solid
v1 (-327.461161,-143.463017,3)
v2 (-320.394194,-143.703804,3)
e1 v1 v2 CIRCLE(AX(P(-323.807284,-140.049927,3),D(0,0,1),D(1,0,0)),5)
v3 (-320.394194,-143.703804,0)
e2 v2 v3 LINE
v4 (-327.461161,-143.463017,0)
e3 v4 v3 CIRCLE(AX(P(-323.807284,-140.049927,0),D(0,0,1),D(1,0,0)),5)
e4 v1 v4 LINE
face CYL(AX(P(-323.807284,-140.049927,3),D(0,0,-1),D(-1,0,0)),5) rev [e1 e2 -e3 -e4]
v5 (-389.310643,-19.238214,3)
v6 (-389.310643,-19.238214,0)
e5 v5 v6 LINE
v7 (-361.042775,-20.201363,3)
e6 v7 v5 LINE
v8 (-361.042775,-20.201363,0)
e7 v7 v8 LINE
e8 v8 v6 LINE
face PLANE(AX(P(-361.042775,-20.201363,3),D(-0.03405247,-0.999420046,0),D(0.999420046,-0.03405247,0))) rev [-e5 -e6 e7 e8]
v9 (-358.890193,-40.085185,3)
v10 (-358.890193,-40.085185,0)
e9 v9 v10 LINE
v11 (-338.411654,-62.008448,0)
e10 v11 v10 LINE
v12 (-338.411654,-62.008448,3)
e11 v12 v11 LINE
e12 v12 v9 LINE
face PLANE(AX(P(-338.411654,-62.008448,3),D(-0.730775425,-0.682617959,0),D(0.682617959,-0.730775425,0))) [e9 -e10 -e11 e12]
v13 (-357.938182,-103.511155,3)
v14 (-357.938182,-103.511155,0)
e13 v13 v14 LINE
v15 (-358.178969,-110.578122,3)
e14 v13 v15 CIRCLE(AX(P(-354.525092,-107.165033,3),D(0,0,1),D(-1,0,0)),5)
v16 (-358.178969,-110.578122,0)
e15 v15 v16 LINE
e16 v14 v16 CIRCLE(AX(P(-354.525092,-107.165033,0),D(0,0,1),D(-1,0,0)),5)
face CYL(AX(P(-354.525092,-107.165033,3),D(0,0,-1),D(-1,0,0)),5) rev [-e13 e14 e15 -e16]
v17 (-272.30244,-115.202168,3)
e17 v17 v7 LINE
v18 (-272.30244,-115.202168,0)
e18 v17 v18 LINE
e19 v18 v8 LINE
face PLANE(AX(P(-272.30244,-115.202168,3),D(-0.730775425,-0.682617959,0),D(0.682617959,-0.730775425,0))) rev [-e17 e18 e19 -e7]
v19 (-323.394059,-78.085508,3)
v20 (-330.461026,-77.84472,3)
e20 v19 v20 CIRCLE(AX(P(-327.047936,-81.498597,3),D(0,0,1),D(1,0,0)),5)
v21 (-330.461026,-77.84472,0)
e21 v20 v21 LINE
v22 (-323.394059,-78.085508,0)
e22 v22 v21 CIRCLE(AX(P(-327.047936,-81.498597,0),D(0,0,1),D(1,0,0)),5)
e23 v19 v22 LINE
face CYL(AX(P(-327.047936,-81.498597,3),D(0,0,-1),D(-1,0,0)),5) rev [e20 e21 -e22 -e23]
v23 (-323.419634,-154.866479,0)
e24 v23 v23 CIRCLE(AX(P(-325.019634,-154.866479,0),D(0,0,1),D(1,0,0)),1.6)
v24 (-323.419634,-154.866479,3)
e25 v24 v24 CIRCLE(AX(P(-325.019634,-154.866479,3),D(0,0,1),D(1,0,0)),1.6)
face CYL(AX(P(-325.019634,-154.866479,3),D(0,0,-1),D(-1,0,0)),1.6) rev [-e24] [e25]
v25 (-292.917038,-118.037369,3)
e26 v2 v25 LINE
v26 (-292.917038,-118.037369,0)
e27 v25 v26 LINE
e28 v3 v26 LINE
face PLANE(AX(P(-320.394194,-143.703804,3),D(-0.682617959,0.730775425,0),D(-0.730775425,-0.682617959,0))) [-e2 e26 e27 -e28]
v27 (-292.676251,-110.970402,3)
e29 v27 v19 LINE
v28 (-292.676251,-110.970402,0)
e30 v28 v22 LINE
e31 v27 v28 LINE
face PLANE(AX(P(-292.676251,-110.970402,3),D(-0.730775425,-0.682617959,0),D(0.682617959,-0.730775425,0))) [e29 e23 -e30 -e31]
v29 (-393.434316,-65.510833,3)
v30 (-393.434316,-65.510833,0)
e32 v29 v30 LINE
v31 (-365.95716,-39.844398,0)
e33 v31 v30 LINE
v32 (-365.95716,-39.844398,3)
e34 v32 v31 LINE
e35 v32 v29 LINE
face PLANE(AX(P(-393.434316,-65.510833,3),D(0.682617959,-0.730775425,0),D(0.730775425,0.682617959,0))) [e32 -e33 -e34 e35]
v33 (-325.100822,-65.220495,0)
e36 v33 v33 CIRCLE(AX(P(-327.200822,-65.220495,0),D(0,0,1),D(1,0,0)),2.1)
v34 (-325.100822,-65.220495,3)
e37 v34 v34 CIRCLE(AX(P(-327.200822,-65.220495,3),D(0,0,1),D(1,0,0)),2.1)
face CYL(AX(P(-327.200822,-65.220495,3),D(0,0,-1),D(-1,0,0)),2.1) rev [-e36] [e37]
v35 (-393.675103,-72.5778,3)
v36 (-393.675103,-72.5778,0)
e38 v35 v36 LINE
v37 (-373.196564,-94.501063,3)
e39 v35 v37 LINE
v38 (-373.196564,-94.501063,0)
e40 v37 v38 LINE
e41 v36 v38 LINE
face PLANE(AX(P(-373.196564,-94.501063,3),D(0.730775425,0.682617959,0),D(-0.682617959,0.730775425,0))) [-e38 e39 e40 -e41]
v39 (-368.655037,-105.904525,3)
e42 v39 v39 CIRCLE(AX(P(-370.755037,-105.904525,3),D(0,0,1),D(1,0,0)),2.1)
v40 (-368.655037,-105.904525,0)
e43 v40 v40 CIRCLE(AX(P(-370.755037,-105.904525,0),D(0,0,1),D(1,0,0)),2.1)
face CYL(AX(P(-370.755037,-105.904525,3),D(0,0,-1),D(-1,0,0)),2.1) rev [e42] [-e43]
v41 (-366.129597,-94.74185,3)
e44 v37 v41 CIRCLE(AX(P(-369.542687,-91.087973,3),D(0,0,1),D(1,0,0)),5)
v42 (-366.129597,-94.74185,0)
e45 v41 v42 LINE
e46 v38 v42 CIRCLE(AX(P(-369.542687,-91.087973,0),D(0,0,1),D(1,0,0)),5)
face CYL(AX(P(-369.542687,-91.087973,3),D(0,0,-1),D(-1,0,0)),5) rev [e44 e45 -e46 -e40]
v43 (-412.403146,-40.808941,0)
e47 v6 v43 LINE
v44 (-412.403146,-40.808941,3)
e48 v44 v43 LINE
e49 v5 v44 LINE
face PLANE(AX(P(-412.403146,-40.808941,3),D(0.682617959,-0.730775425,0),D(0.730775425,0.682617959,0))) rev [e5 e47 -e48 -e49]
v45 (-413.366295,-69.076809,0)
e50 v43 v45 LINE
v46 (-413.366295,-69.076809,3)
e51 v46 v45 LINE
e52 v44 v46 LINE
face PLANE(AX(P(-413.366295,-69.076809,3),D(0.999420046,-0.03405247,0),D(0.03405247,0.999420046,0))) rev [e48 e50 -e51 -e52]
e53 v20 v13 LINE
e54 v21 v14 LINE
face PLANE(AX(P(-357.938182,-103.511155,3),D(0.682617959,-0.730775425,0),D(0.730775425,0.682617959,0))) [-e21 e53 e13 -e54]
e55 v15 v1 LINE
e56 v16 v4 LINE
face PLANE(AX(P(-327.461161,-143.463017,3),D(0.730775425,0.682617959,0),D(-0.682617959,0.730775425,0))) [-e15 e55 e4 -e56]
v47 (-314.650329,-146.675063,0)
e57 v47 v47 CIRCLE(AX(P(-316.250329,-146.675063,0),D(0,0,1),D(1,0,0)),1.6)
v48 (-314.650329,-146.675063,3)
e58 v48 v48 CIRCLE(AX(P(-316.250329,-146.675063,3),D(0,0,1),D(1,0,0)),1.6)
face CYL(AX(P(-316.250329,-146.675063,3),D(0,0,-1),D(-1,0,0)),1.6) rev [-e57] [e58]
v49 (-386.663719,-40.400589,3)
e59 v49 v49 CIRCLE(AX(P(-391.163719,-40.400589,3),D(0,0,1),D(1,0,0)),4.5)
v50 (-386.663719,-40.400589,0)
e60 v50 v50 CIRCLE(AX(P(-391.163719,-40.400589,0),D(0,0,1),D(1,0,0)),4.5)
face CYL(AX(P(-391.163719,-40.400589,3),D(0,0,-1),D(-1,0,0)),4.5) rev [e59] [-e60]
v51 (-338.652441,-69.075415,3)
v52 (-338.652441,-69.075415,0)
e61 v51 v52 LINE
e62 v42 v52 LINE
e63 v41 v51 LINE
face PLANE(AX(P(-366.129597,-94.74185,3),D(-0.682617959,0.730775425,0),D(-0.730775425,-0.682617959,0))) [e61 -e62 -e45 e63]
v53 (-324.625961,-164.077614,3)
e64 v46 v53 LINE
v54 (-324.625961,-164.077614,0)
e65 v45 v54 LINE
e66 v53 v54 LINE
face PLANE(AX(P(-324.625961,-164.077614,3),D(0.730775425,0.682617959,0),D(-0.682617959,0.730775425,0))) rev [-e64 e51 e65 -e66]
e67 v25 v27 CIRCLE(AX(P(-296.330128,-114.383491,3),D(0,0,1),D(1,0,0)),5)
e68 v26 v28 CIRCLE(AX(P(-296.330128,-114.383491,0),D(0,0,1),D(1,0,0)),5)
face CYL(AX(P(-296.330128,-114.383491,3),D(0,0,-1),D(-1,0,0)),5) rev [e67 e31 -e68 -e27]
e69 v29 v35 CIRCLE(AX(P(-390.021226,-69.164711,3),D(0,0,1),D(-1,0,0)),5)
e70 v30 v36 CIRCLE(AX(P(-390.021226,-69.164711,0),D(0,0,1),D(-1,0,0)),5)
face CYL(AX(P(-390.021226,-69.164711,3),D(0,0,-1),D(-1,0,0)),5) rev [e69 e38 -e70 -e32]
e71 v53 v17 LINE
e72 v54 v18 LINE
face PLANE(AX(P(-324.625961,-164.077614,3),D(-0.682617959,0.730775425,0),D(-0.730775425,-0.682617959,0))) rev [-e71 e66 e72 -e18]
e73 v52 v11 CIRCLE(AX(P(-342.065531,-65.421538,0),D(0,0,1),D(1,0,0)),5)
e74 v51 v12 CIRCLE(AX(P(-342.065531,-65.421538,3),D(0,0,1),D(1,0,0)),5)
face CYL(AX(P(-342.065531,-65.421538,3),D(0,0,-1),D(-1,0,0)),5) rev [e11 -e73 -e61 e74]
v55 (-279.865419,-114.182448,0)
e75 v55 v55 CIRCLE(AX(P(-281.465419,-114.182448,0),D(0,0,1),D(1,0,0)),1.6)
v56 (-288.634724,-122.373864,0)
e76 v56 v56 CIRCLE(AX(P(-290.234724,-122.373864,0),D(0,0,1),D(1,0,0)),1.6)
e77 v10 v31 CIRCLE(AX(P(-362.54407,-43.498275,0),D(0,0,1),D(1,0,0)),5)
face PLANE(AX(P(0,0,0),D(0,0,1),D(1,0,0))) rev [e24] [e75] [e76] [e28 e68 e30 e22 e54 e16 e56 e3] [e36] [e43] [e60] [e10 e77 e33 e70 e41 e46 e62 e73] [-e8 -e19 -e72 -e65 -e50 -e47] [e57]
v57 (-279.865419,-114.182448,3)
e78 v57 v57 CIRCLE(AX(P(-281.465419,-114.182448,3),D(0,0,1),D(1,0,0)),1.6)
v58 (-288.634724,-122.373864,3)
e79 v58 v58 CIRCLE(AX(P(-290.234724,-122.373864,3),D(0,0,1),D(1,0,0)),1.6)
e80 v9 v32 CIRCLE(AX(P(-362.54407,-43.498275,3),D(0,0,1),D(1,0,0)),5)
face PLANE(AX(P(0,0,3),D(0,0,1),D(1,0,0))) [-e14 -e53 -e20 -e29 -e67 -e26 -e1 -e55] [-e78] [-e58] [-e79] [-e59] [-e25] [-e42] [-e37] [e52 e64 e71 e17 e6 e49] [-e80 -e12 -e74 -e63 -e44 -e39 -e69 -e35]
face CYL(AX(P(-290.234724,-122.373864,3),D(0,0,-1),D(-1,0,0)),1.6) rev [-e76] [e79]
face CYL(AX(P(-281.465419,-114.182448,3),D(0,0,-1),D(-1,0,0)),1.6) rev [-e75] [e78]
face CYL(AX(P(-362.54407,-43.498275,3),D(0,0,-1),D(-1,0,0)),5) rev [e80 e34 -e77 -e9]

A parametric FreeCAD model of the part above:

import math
import FreeCAD as App
import Part
import Sketcher
from FreeCAD import Vector

doc = App.newDocument("Part")
body = doc.addObject("PartDesign::Body", "Body")

# Sketch on XY plane
sketch1 = doc.addObject("Sketcher::SketchObject", "Sketch")
body.addObject(sketch1)
sketch1.AttachmentSupport = (doc.XY_Plane, [""])
sketch1.MapMode = "FlatFace"
sketch1.addGeometry([
    Part.LineSegment(Vector(-324.6, -164.1, 0), Vector(-272.3, -115.2, 0)),  # 0
    Part.LineSegment(Vector(-272.3, -115.2, 0), Vector(-361, -20.2, 0)),  # 1
    Part.LineSegment(Vector(-361, -20.2, 0), Vector(-389.3, -19.2, 0)),  # 2
    Part.LineSegment(Vector(-389.3, -19.2, 0), Vector(-412.4, -40.8, 0)),  # 3
    Part.LineSegment(Vector(-412.4, -40.8, 0), Vector(-413.4, -69.1, 0)),  # 4
    Part.LineSegment(Vector(-413.4, -69.1, 0), Vector(-324.6, -164.1, 0)),  # 5
    Part.Circle(Vector(-370.8, -105.9, 0), Vector(0, 0, 1), 2.1),  # 6
    Part.Circle(Vector(-325, -154.9, 0), Vector(0, 0, 1), 1.6),  # 7
    Part.Circle(Vector(-316.3, -146.7, 0), Vector(0, 0, 1), 1.6),  # 8
    Part.LineSegment(Vector(-292.9, -118, 0), Vector(-320.4, -143.7, 0)),  # 9
    Part.ArcOfCircle(Part.Circle(Vector(-323.8, -140, 0), Vector(0, 0, 1), 5), math.radians(-137), math.radians(-47)),  # 10
    Part.LineSegment(Vector(-327.5, -143.5, 0), Vector(-358.2, -110.6, 0)),  # 11
    Part.ArcOfCircle(Part.Circle(Vector(-354.5, -107.2, 0), Vector(0, 0, 1), 5), math.radians(133), math.radians(223)),  # 12
    Part.LineSegment(Vector(-357.9, -103.5, 0), Vector(-330.5, -77.8, 0)),  # 13
    Part.ArcOfCircle(Part.Circle(Vector(-327, -81.5, 0), Vector(0, 0, 1), 5), math.radians(43), math.radians(133)),  # 14
    Part.LineSegment(Vector(-323.4, -78.1, 0), Vector(-292.7, -111, 0)),  # 15
    Part.ArcOfCircle(Part.Circle(Vector(-296.3, -114.4, 0), Vector(0, 0, 1), 5), math.radians(-47), math.radians(43)),  # 16
    Part.Circle(Vector(-290.2, -122.4, 0), Vector(0, 0, 1), 1.6),  # 17
    Part.Circle(Vector(-281.5, -114.2, 0), Vector(0, 0, 1), 1.6),  # 18
    Part.LineSegment(Vector(-338.7, -69.1, 0), Vector(-366.1, -94.7, 0)),  # 19
    Part.ArcOfCircle(Part.Circle(Vector(-369.5, -91.1, 0), Vector(0, 0, 1), 5), math.radians(-137), math.radians(-47)),  # 20
    Part.LineSegment(Vector(-373.2, -94.5, 0), Vector(-393.7, -72.6, 0)),  # 21
    Part.ArcOfCircle(Part.Circle(Vector(-390, -69.2, 0), Vector(0, 0, 1), 5), math.radians(133), math.radians(223)),  # 22
    Part.LineSegment(Vector(-393.4, -65.5, 0), Vector(-366, -39.8, 0)),  # 23
    Part.ArcOfCircle(Part.Circle(Vector(-362.5, -43.5, 0), Vector(0, 0, 1), 5), math.radians(43), math.radians(133)),  # 24
    Part.LineSegment(Vector(-358.9, -40.1, 0), Vector(-338.4, -62, 0)),  # 25
    Part.ArcOfCircle(Part.Circle(Vector(-342.1, -65.4, 0), Vector(0, 0, 1), 5), math.radians(-47), math.radians(43)),  # 26
    Part.Circle(Vector(-391.2, -40.4, 0), Vector(0, 0, 1), 4.5),  # 27
    Part.Circle(Vector(-327.2, -65.2, 0), Vector(0, 0, 1), 2.1),  # 28
], False)
sketch1.addConstraint([
    Sketcher.Constraint("Coincident", 0, 2, 1, 1),
    Sketcher.Constraint("Coincident", 1, 2, 2, 1),
    Sketcher.Constraint("Coincident", 2, 2, 3, 1),
    Sketcher.Constraint("Coincident", 3, 2, 4, 1),
    Sketcher.Constraint("Coincident", 4, 2, 5, 1),
    Sketcher.Constraint("Coincident", 5, 2, 0, 1),
    Sketcher.Constraint("Tangent", 9, 2, 10, 2),
    Sketcher.Constraint("Tangent", 10, 1, 11, 1),
    Sketcher.Constraint("Tangent", 11, 2, 12, 2),
    Sketcher.Constraint("Tangent", 12, 1, 13, 1),
    Sketcher.Constraint("Tangent", 13, 2, 14, 2),
    Sketcher.Constraint("Tangent", 14, 1, 15, 1),
    Sketcher.Constraint("Tangent", 15, 2, 16, 2),
    Sketcher.Constraint("Tangent", 16, 1, 9, 1),
    Sketcher.Constraint("Tangent", 19, 2, 20, 2),
    Sketcher.Constraint("Tangent", 20, 1, 21, 1),
    Sketcher.Constraint("Tangent", 21, 2, 22, 2),
    Sketcher.Constraint("Tangent", 22, 1, 23, 1),
    Sketcher.Constraint("Tangent", 23, 2, 24, 2),
    Sketcher.Constraint("Tangent", 24, 1, 25, 1),
    Sketcher.Constraint("Tangent", 25, 2, 26, 2),
    Sketcher.Constraint("Tangent", 26, 1, 19, 1),
    Sketcher.Constraint("Equal", 7, 8),
    Sketcher.Constraint("Equal", 10, 12),
    Sketcher.Constraint("Equal", 12, 14),
    Sketcher.Constraint("Equal", 14, 16),
    Sketcher.Constraint("Equal", 8, 17),
    Sketcher.Constraint("Equal", 17, 18),
    Sketcher.Constraint("Equal", 16, 20),
    Sketcher.Constraint("Equal", 20, 22),
    Sketcher.Constraint("Equal", 22, 24),
    Sketcher.Constraint("Equal", 24, 26),
    Sketcher.Constraint("Equal", 6, 28),
    Sketcher.Constraint("Perpendicular", 0, 1),
    Sketcher.Constraint("Perpendicular", 1, 3),
    Sketcher.Constraint("Perpendicular", 2, 4),
    Sketcher.Constraint("Perpendicular", 3, 5),
    Sketcher.Constraint("Perpendicular", 5, 9),
    Sketcher.Constraint("Perpendicular", 9, 11),
    Sketcher.Constraint("Perpendicular", 11, 13),
    Sketcher.Constraint("Perpendicular", 13, 15),
    Sketcher.Constraint("Perpendicular", 15, 19),
    Sketcher.Constraint("Perpendicular", 19, 21),
    Sketcher.Constraint("Perpendicular", 21, 23),
    Sketcher.Constraint("Perpendicular", 23, 25),
    Sketcher.Constraint("Equal", 2, 4),
    Sketcher.Constraint("Equal", 1, 5),
    Sketcher.Constraint("Equal", 13, 19),
    Sketcher.Constraint("Diameter", 27, 9.0),
    Sketcher.Constraint("Radius", 10, 5.0),
    Sketcher.Constraint("Diameter", 6, 4.2),
    Sketcher.Constraint("Diameter", 7, 3.2),
    Sketcher.Constraint("Distance", 1, 130.0),
    Sketcher.Constraint("Distance", 11, 45.0),
    Sketcher.Constraint("Distance", 21, 30.0),
    Sketcher.Constraint("Distance", 0, 71.6),
    Sketcher.Constraint("Distance", 3, 31.6),
    Sketcher.Constraint("Distance", 9, 37.6),
    Sketcher.Constraint("DistanceY", 15, 2, -1, 1, 110.970402),
    Sketcher.Constraint("DistanceY", 21, 2, -1, 1, 72.5778),
    Sketcher.Constraint("DistanceY", 23, 2, -1, 1, 39.844398),
    Sketcher.Constraint("DistanceY", 10, 3, 6, 3, 34.145402),
    Sketcher.Constraint("DistanceX", 6, 3, 14, 3, 43.707101),
    Sketcher.Constraint("DistanceX", 8, 3, 16, 3, 19.920201),
    Sketcher.Constraint("DistanceY", 8, 3, 17, 3, 24.301199),
    Sketcher.Constraint("DistanceY", 22, 3, 4, 2, 0.087901),
    Sketcher.Constraint("DistanceX", 10, 1, 5, 2, 2.8352),
    Sketcher.Constraint("DistanceY", 7, 3, -1, 1, 154.866479),
    Sketcher.Constraint("DistanceX", 8, 3, -1, 1, 316.250329),
    Sketcher.Constraint("DistanceX", 18, 3, -1, 1, 281.465419),
    Sketcher.Constraint("DistanceY", 18, 3, -1, 1, 114.182448),
    Sketcher.Constraint("DistanceX", 24, 3, -1, 1, 362.54407),
    Sketcher.Constraint("DistanceX", 27, 3, -1, 1, 391.163719),
    Sketcher.Constraint("DistanceY", 27, 3, -1, 1, 40.400589),
    Sketcher.Constraint("DistanceX", 28, 3, -1, 1, 327.200822),
    Sketcher.Constraint("DistanceX", 7, 3, 10, 3, 1.21235),
    Sketcher.Constraint("DistanceY", 8, 3, 12, 3, 39.51003),
    Sketcher.Constraint("DistanceX", 10, 3, 17, 3, 33.57256),
    Sketcher.Constraint("DistanceY", 28, 3, 24, 3, 21.722219),
])
pad1 = doc.addObject("PartDesign::Pad", "Pad")
body.addObject(pad1)
pad1.Profile = sketch1
pad1.Length = 3

doc.recompute()
